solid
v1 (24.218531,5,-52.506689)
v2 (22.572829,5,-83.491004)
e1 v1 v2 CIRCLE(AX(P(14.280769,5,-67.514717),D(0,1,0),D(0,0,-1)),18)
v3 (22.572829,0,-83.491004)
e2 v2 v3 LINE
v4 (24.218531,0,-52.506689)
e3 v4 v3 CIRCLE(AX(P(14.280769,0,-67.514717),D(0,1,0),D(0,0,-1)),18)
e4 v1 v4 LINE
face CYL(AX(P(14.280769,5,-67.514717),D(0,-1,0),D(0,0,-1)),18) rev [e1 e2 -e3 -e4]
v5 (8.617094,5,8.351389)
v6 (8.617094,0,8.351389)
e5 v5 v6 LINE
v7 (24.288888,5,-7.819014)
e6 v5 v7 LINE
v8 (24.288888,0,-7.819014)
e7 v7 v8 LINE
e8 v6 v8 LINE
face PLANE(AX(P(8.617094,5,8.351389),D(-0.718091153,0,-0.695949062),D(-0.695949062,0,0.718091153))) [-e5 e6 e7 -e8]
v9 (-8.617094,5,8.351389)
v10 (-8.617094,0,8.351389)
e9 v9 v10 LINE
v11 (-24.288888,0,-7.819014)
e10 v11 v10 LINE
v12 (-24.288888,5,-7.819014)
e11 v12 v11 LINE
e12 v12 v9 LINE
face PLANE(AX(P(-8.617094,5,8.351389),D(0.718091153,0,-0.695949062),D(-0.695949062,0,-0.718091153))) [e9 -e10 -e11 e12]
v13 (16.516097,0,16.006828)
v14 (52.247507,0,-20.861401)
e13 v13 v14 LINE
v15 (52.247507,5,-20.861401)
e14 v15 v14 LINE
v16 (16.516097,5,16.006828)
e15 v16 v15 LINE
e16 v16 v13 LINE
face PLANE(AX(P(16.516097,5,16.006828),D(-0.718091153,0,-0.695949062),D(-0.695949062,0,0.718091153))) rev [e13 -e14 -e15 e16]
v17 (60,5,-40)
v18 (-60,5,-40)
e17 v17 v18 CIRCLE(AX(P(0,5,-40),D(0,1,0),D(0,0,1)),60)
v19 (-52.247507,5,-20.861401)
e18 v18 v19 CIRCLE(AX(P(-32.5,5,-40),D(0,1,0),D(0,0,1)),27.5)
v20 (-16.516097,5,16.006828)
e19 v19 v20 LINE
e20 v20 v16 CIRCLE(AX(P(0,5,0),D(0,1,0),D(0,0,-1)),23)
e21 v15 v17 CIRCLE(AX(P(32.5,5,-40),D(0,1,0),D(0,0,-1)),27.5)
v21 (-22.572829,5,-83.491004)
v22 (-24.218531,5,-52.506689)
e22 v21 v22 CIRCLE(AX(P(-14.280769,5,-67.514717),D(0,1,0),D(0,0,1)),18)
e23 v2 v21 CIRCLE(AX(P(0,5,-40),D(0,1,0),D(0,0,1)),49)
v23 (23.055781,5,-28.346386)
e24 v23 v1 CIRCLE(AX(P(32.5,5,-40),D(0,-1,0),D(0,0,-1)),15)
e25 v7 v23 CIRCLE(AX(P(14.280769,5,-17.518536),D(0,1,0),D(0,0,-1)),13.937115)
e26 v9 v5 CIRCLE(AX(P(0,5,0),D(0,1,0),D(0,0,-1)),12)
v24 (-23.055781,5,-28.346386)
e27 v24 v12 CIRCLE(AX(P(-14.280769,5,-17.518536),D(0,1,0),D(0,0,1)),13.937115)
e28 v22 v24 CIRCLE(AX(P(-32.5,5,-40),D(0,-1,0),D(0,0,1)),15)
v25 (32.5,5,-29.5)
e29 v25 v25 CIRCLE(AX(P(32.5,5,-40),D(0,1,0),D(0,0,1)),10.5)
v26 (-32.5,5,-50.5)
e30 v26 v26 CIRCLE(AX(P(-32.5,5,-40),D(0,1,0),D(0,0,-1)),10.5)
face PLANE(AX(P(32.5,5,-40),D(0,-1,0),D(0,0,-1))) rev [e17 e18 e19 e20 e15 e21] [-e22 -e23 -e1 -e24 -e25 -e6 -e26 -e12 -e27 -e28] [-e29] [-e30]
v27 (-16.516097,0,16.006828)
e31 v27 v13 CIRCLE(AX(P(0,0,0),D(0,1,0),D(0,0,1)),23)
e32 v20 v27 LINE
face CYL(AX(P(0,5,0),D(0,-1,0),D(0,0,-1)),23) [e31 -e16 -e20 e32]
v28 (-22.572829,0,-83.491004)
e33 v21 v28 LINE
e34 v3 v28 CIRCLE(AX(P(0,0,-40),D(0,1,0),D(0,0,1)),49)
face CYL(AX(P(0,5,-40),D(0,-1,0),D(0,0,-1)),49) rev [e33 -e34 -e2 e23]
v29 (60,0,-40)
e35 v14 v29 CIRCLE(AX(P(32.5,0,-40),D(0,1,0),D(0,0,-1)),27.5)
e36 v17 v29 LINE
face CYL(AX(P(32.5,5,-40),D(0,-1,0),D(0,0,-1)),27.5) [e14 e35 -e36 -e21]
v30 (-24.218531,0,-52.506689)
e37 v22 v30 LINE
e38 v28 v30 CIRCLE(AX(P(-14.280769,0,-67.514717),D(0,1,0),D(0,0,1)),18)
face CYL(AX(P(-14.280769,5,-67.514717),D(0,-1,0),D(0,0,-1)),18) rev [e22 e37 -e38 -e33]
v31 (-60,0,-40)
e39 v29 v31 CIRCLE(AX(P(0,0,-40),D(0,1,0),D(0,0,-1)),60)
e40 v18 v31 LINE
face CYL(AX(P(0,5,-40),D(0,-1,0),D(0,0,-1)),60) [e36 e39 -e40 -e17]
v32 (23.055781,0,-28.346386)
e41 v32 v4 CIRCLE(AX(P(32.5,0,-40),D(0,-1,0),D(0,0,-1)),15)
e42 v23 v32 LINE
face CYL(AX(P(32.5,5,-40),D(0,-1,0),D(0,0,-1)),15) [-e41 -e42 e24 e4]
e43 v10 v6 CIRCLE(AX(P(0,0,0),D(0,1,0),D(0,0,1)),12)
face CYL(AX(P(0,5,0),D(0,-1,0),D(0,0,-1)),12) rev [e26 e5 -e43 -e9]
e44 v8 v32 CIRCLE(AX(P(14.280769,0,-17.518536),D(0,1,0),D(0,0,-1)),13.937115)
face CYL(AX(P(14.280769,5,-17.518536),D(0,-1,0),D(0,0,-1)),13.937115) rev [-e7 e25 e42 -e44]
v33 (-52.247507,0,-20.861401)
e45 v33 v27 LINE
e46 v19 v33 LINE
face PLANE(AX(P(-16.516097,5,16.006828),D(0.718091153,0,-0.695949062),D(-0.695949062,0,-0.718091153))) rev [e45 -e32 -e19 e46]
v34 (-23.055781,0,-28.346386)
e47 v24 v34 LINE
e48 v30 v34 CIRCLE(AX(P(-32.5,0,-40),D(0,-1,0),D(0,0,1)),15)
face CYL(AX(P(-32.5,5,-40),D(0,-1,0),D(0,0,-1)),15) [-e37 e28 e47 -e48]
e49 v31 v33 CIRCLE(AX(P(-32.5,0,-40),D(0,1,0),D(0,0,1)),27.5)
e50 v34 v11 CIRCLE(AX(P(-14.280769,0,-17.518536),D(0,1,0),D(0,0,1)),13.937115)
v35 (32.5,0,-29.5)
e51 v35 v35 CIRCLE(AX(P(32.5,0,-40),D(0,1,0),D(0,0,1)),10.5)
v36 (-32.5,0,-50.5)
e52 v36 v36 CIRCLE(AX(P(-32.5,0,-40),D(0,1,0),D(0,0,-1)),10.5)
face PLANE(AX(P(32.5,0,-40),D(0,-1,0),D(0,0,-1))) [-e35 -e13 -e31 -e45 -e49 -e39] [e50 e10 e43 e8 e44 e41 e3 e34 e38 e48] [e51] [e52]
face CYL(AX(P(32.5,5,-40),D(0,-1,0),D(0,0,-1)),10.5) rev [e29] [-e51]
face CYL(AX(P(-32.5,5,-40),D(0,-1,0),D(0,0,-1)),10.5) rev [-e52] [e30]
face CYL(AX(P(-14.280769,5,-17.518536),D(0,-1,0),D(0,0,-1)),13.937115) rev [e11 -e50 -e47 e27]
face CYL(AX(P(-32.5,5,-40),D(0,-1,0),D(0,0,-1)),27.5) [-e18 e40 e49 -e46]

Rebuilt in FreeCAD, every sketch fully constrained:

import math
import FreeCAD as App
import Part
import Sketcher

doc = App.newDocument("Part")
body = doc.addObject("PartDesign::Body", "Body")

# Sketch on XZ plane
sketch1 = body.newObject("Sketcher::SketchObject", "Sketch")
sketch1.AttachmentSupport = (doc.getObject("XZ_Plane"), [""])
sketch1.MapMode = "FlatFace"
sketch1.addGeometry(Part.LineSegment(App.Vector(17, 16, 0), App.Vector(52, -21, 0)), False)
sketch1.addGeometry(Part.ArcOfCircle(Part.Circle(App.Vector(33, -40, 0), App.Vector(0, 0, 1), 27), math.radians(0), math.radians(44)), False)
sketch1.addGeometry(Part.ArcOfCircle(Part.Circle(App.Vector(0, -40, 0), App.Vector(0, 0, 1), 60), math.radians(-90), math.radians(0)), False)
sketch1.addGeometry(Part.ArcOfCircle(Part.Circle(App.Vector(0, -40, 0), App.Vector(0, 0, 1), 60), math.radians(-180), math.radians(-90)), False)
sketch1.addGeometry(Part.ArcOfCircle(Part.Circle(App.Vector(-33, -40, 0), App.Vector(0, 0, 1), 27), math.radians(136), math.radians(180)), False)
sketch1.addGeometry(Part.LineSegment(App.Vector(-52, -21, 0), App.Vector(-17, 16, 0)), False)
sketch1.addGeometry(Part.ArcOfCircle(Part.Circle(App.Vector(0, 0, 0), App.Vector(0, 0, 1), 23), math.radians(90), math.radians(136)), False)
sketch1.addGeometry(Part.ArcOfCircle(Part.Circle(App.Vector(0, 0, 0), App.Vector(0, 0, 1), 23), math.radians(44), math.radians(90)), False)
sketch1.addGeometry(Part.Circle(App.Vector(-32, -40, 0), App.Vector(0, 0, 1), 10), False)
sketch1.addGeometry(Part.LineSegment(App.Vector(24, -8, 0), App.Vector(9, 8, 0)), False)
sketch1.addGeometry(Part.ArcOfCircle(Part.Circle(App.Vector(0, 0, 0), App.Vector(0, 0, 1), 12), math.radians(44), math.radians(90)), False)
sketch1.addGeometry(Part.ArcOfCircle(Part.Circle(App.Vector(0, 0, 0), App.Vector(0, 0, 1), 12), math.radians(90), math.radians(136)), False)
sketch1.addGeometry(Part.LineSegment(App.Vector(-9, 8, 0), App.Vector(-24, -8, 0)), False)
sketch1.addGeometry(Part.ArcOfCircle(Part.Circle(App.Vector(-14, -18, 0), App.Vector(0, 0, 1), 14), math.radians(136), math.radians(231)), False)
sketch1.addGeometry(Part.ArcOfCircle(Part.Circle(App.Vector(-32, -40, 0), App.Vector(0, 0, 1), 15), math.radians(-56), math.radians(51)), False)
sketch1.addGeometry(Part.ArcOfCircle(Part.Circle(App.Vector(-14, -68, 0), App.Vector(0, 0, 1), 18), math.radians(124), math.radians(243)), False)
sketch1.addGeometry(Part.ArcOfCircle(Part.Circle(App.Vector(0, -40, 0), App.Vector(0, 0, 1), 49), math.radians(-117), math.radians(-63)), False)
sketch1.addGeometry(Part.ArcOfCircle(Part.Circle(App.Vector(14, -68, 0), App.Vector(0, 0, 1), 18), math.radians(-63), math.radians(56)), False)
sketch1.addGeometry(Part.ArcOfCircle(Part.Circle(App.Vector(32, -40, 0), App.Vector(0, 0, 1), 15), math.radians(129), math.radians(236)), False)
sketch1.addGeometry(Part.ArcOfCircle(Part.Circle(App.Vector(14, -18, 0), App.Vector(0, 0, 1), 14), math.radians(-51), math.radians(44)), False)
sketch1.addGeometry(Part.Circle(App.Vector(32, -40, 0), App.Vector(0, 0, 1), 10), False)
sketch1.addConstraint(Sketcher.Constraint("Tangent", 0, 2, 1, 2))
sketch1.addConstraint(Sketcher.Constraint("Tangent", 1, 1, 2, 2))
sketch1.addConstraint(Sketcher.Constraint("Tangent", 2, 1, 3, 2))
sketch1.addConstraint(Sketcher.Constraint("Tangent", 3, 1, 4, 2))
sketch1.addConstraint(Sketcher.Constraint("Tangent", 4, 1, 5, 1))
sketch1.addConstraint(Sketcher.Constraint("Tangent", 5, 2, 6, 2))
sketch1.addConstraint(Sketcher.Constraint("Tangent", 6, 1, 7, 2))
sketch1.addConstraint(Sketcher.Constraint("Tangent", 7, 1, 0, 1))
sketch1.addConstraint(Sketcher.Constraint("Tangent", 9, 2, 10, 1))
sketch1.addConstraint(Sketcher.Constraint("Tangent", 10, 2, 11, 1))
sketch1.addConstraint(Sketcher.Constraint("Tangent", 11, 2, 12, 1))
sketch1.addConstraint(Sketcher.Constraint("Tangent", 12, 2, 13, 1))
sketch1.addConstraint(Sketcher.Constraint("Tangent", 13, 2, 14, 2))
sketch1.addConstraint(Sketcher.Constraint("Tangent", 14, 1, 15, 1))
sketch1.addConstraint(Sketcher.Constraint("Tangent", 15, 2, 16, 1))
sketch1.addConstraint(Sketcher.Constraint("Tangent", 16, 2, 17, 1))
sketch1.addConstraint(Sketcher.Constraint("Tangent", 17, 2, 18, 2))
sketch1.addConstraint(Sketcher.Constraint("Tangent", 18, 1, 19, 1))
sketch1.addConstraint(Sketcher.Constraint("Tangent", 19, 2, 9, 1))
sketch1.addConstraint(Sketcher.Constraint("Coincident", 6, 3, -1, 1))
sketch1.addConstraint(Sketcher.Constraint("Coincident", 10, 3, -1, 1))
sketch1.addConstraint(Sketcher.Constraint("Coincident", 8, 3, 4, 3))
sketch1.addConstraint(Sketcher.Constraint("Coincident", 14, 3, 4, 3))
sketch1.addConstraint(Sketcher.Constraint("Coincident", 16, 3, 2, 3))
sketch1.addConstraint(Sketcher.Constraint("Coincident", 18, 3, 1, 3))
sketch1.addConstraint(Sketcher.Constraint("Coincident", 20, 3, 1, 3))
sketch1.addConstraint(Sketcher.Constraint("Equal", 2, 3))
sketch1.addConstraint(Sketcher.Constraint("Equal", 1, 4))
sketch1.addConstraint(Sketcher.Constraint("Equal", 6, 7))
sketch1.addConstraint(Sketcher.Constraint("Equal", 10, 11))
sketch1.addConstraint(Sketcher.Constraint("Equal", 15, 17))
sketch1.addConstraint(Sketcher.Constraint("Equal", 14, 18))
sketch1.addConstraint(Sketcher.Constraint("Equal", 13, 19))
sketch1.addConstraint(Sketcher.Constraint("Equal", 8, 20))
sketch1.addConstraint(Sketcher.Constraint("Symmetric", 1, 3, 4, 3, -2))
sketch1.addConstraint(Sketcher.Constraint("PointOnObject", 2, 1, -2))
sketch1.addConstraint(Sketcher.Constraint("PointOnObject", 6, 1, -2))
sketch1.addConstraint(Sketcher.Constraint("PointOnObject", 10, 2, -2))
sketch1.addConstraint(Sketcher.Constraint("Parallel", 0, 9))
sketch1.addConstraint(Sketcher.Constraint("Parallel", 5, 12))
sketch1.addConstraint(Sketcher.Constraint("Horizontal", 1, 3, 2, 3))
sketch1.addConstraint(Sketcher.Constraint("Vertical", 13, 3, 15, 3))
sketch1.addConstraint(Sketcher.Constraint("Diameter", 8, 21.0))
sketch1.addConstraint(Sketcher.Constraint("Radius", 2, 60.0))
sketch1.addConstraint(Sketcher.Constraint("Radius", 6, 23.0))
sketch1.addConstraint(Sketcher.Constraint("Radius", 10, 12.0))
sketch1.addConstraint(Sketcher.Constraint("Radius", 14, 15.0))
sketch1.addConstraint(Sketcher.Constraint("Radius", 15, 18.0))
sketch1.addConstraint(Sketcher.Constraint("Radius", 16, 49.0))
sketch1.addConstraint(Sketcher.Constraint("Radius", 1, 27.5))
sketch1.addConstraint(Sketcher.Constraint("DistanceY", 1, 3, -1, 1, 40.0))
pad1 = body.newObject("PartDesign::Pad", "Pad")
pad1.Profile = sketch1
pad1.Length = 5
pad1.Reversed = True

doc.recompute()
